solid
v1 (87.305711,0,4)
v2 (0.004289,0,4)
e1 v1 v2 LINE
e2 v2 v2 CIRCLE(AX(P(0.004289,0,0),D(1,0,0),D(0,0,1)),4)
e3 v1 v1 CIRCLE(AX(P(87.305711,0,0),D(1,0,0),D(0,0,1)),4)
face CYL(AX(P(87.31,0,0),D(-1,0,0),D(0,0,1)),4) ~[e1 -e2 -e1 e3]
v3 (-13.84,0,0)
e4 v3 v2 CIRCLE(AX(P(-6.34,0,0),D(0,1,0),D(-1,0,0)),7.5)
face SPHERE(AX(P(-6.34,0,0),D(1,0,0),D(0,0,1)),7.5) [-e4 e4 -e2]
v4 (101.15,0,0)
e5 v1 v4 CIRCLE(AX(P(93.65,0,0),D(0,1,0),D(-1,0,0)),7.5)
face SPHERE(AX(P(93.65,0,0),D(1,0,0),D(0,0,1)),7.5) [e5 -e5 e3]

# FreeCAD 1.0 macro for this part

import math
import FreeCAD as App
import Part
import Sketcher

doc = App.newDocument("Part")
params = doc.addObject("Spreadsheet::Sheet", "Params")
for row, (alias, value) in enumerate([
    ("sketch1_radius", "7.5 mm"),
    ("sketch1_width", "114.99 mm"),
    ("revolution_angle", "360 deg"),
], start=1):
    params.set(f"A{row}", alias)
    params.set(f"B{row}", "=" + value)
    params.setAlias(f"B{row}", alias)

body = doc.addObject("PartDesign::Body", "Body")

sketch1 = body.newObject("Sketcher::SketchObject", "Sketch")
sketch1.AttachmentSupport = (doc.getObject("XZ_Plane"), [""])
sketch1.MapMode = "FlatFace"
sketch1.addGeometry(Part.ArcOfCircle(Part.Circle(App.Vector(-6, 0, 0), App.Vector(0, 0, 1), 8), math.radians(32), math.radians(180)), False)
sketch1.addGeometry(Part.LineSegment(App.Vector(0, 4, 0), App.Vector(87, 4, 0)), False)
sketch1.addGeometry(Part.ArcOfCircle(Part.Circle(App.Vector(94, 0, 0), App.Vector(0, 0, 1), 8), math.radians(0), math.radians(148)), False)
sketch1.addGeometry(Part.LineSegment(App.Vector(101, 0, 0), App.Vector(-14, 0, 0)), False)
sketch1.addConstraint(Sketcher.Constraint("Coincident", 0, 1, 1, 1))
sketch1.addConstraint(Sketcher.Constraint("Coincident", 1, 2, 2, 2))
sketch1.addConstraint(Sketcher.Constraint("Coincident", 2, 1, 3, 1))
sketch1.addConstraint(Sketcher.Constraint("Coincident", 3, 2, 0, 2))
sketch1.addConstraint(Sketcher.Constraint("Horizontal", 1))
sketch1.addConstraint(Sketcher.Constraint("Horizontal", 3))
sketch1.addConstraint(Sketcher.Constraint("Equal", 0, 2))
sketch1.addConstraint(Sketcher.Constraint("PointOnObject", 0, 3, -1))
sketch1.addConstraint(Sketcher.Constraint("PointOnObject", 2, 3, -1))
sketch1.addConstraint(Sketcher.Constraint("PointOnObject", 2, 1, -1))
sketch1.addConstraint(Sketcher.Constraint("Radius", 0, 7.5))
sketch1.addConstraint(Sketcher.Constraint("DistanceX", 0, 3, -1, 1, 6.34))
sketch1.addConstraint(Sketcher.Constraint("DistanceY", -1, 1, 0, 1, 4.0))
sketch1.addConstraint(Sketcher.Constraint("DistanceX", 3, 2, 3, 1, 114.99))
sketch1.setExpression("Constraints[10]", "Params.sketch1_radius")
sketch1.setExpression("Constraints[13]", "Params.sketch1_width")
revolution = body.newObject("PartDesign::Revolution", "Revolution")
revolution.Profile = sketch1
revolution.ReferenceAxis = (sketch1, ["H_Axis"])
revolution.setExpression("Angle", "Params.revolution_angle")

doc.recompute()
